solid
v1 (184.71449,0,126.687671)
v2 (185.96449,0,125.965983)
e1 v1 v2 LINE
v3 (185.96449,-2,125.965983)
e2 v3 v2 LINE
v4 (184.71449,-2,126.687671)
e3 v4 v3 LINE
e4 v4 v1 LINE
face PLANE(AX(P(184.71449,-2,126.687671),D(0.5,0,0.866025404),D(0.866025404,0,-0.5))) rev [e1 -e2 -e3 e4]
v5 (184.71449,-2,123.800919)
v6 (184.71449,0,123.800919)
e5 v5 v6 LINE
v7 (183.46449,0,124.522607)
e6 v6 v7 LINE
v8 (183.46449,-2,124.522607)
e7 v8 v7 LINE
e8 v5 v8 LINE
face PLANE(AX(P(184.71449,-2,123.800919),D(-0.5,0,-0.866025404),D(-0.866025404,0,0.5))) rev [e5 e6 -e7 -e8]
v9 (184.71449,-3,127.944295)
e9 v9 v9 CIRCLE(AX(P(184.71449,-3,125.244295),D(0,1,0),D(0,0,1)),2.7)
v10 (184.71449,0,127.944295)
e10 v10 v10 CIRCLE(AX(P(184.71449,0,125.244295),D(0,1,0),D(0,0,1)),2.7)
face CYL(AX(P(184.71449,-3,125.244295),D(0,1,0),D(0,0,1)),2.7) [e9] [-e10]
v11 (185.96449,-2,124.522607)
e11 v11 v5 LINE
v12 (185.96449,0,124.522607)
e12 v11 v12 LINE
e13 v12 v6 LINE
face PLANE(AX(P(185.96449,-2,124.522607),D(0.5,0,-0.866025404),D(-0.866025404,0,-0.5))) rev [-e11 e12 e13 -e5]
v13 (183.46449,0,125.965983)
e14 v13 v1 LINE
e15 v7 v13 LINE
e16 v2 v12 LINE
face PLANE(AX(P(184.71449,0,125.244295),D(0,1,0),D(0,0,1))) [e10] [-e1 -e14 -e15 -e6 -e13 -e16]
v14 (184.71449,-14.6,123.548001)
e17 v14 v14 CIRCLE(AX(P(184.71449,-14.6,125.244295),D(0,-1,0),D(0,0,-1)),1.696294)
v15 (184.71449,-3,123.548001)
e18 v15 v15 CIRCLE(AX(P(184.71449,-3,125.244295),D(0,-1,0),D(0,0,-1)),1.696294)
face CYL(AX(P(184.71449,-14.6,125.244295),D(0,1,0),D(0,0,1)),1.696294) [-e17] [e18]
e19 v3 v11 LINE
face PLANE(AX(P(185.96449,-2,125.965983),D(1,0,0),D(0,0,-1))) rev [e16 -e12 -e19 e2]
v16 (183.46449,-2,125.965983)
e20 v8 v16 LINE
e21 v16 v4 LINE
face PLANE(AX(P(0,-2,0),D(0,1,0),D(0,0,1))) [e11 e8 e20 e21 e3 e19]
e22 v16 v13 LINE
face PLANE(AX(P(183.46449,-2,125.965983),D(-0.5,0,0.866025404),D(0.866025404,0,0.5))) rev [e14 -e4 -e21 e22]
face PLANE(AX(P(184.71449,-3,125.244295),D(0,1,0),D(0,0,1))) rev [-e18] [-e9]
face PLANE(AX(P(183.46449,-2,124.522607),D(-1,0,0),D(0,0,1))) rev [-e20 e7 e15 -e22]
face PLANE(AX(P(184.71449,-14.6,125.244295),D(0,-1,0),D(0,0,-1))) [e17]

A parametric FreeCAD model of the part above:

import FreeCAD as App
import Part
import Sketcher

V = App.Vector
Q = App.Units.Quantity


def add_polygon(sketch, points):
    """Adds a closed chain of lines whose ends are joined by coincident constraints."""
    first, n = sketch.GeometryCount, len(points)
    for a, b in zip(points, points[1:] + points[:1]):
        sketch.addGeometry(Part.LineSegment(App.Vector(*a, 0), App.Vector(*b, 0)), False)
    for i in range(n):
        sketch.addConstraint(Sketcher.Constraint("Coincident", first + i, 2, first + (i + 1) % n, 1))

doc = App.newDocument("Part")
params = doc.addObject("Spreadsheet::Sheet", "Params")
for row, (alias, value) in enumerate([
    ("sketch1_diameter", "5.4 mm"),
    ("pad1_length", "3 mm"),
    ("pad2_length", "11.6 mm"),
    ("pocket1_length", "2 mm"),
], start=1):
    params.set(f"A{row}", alias)
    params.set(f"B{row}", "=" + value)
    params.setAlias(f"B{row}", alias)

body = doc.addObject("PartDesign::Body", "Body")

# Sketch on XZ plane
sketch1 = body.newObject("Sketcher::SketchObject", "Sketch")
sketch1.AttachmentSupport = (doc.getObject("XZ_Plane"), [""])
sketch1.MapMode = "FlatFace"
sketch1.addGeometry(Part.Circle(V(184.7, 125.2, 0), V(0, 0, 1), 2.7), False)
sketch1.addConstraint(Sketcher.Constraint("Diameter", 0, 5.4))
sketch1.addConstraint(Sketcher.Constraint("DistanceX", -1, 1, 0, 3, 184.71449))
sketch1.addConstraint(Sketcher.Constraint("DistanceY", -1, 1, 0, 3, 125.244295))
sketch1.setExpression("Constraints[0]", "Params.sketch1_diameter")
pad1 = body.newObject("PartDesign::Pad", "Pad")
pad1.Profile = sketch1
pad1.setExpression("Length", "Params.pad1_length")

# Sketch on XZ plane
sketch2 = body.newObject("Sketcher::SketchObject", "Sketch001")
sketch2.AttachmentSupport = (doc.getObject("XZ_Plane"), [""])
sketch2.MapMode = "FlatFace"
sketch2.AttachmentOffset = App.Placement(V(0, 0, 3), App.Rotation())
sketch2.addGeometry(Part.Circle(V(184.7, 125.2, 0), V(0, 0, 1), 1.7), False)
sketch2.addConstraint(Sketcher.Constraint("Diameter", 0, 3.392587))
sketch2.addConstraint(Sketcher.Constraint("DistanceX", -1, 1, 0, 3, 184.71449))
sketch2.addConstraint(Sketcher.Constraint("DistanceY", -1, 1, 0, 3, 125.244295))
pad2 = body.newObject("PartDesign::Pad", "Pad001")
pad2.Profile = sketch2
pad2.setExpression("Length", "Params.pad2_length")

# Sketch on XZ plane
sketch3 = body.newObject("Sketcher::SketchObject", "Sketch002")
sketch3.AttachmentSupport = (doc.getObject("XZ_Plane"), [""])
sketch3.MapMode = "FlatFace"
add_polygon(sketch3, [(184.7, 123.8), (183.5, 124.5), (183.5, 126), (184.7, 126.7), (186, 126), (186, 124.5)])  # lines 0-5
sketch3.addConstraint(Sketcher.Constraint("Vertical", 1))
sketch3.addConstraint(Sketcher.Constraint("Vertical", 4))
sketch3.addConstraint(Sketcher.Constraint("Parallel", 0, 3))
sketch3.addConstraint(Sketcher.Constraint("Parallel", 2, 5))
sketch3.addConstraint(Sketcher.Constraint("Horizontal", 1, 2, 3, 2))
sketch3.addConstraint(Sketcher.Constraint("Horizontal", 0, 2, 4, 2))
sketch3.addConstraint(Sketcher.Constraint("Vertical", 2, 2, 5, 2))
sketch3.addConstraint(Sketcher.Constraint("Angle", 0, Q("150 deg")))
sketch3.addConstraint(Sketcher.Constraint("DistanceX", 1, 2, 3, 2, 2.5))
sketch3.addConstraint(Sketcher.Constraint("DistanceY", 1, 1, 1, 2, 1.443376))
sketch3.addConstraint(Sketcher.Constraint("DistanceX", -1, 1, 0, 2, 183.46449))
sketch3.addConstraint(Sketcher.Constraint("DistanceY", -1, 1, 2, 2, 126.687671))
pocket1 = body.newObject("PartDesign::Pocket", "Pocket")
pocket1.Profile = sketch3
pocket1.setExpression("Length", "Params.pocket1_length")
pocket1.Reversed = True

doc.recompute()
